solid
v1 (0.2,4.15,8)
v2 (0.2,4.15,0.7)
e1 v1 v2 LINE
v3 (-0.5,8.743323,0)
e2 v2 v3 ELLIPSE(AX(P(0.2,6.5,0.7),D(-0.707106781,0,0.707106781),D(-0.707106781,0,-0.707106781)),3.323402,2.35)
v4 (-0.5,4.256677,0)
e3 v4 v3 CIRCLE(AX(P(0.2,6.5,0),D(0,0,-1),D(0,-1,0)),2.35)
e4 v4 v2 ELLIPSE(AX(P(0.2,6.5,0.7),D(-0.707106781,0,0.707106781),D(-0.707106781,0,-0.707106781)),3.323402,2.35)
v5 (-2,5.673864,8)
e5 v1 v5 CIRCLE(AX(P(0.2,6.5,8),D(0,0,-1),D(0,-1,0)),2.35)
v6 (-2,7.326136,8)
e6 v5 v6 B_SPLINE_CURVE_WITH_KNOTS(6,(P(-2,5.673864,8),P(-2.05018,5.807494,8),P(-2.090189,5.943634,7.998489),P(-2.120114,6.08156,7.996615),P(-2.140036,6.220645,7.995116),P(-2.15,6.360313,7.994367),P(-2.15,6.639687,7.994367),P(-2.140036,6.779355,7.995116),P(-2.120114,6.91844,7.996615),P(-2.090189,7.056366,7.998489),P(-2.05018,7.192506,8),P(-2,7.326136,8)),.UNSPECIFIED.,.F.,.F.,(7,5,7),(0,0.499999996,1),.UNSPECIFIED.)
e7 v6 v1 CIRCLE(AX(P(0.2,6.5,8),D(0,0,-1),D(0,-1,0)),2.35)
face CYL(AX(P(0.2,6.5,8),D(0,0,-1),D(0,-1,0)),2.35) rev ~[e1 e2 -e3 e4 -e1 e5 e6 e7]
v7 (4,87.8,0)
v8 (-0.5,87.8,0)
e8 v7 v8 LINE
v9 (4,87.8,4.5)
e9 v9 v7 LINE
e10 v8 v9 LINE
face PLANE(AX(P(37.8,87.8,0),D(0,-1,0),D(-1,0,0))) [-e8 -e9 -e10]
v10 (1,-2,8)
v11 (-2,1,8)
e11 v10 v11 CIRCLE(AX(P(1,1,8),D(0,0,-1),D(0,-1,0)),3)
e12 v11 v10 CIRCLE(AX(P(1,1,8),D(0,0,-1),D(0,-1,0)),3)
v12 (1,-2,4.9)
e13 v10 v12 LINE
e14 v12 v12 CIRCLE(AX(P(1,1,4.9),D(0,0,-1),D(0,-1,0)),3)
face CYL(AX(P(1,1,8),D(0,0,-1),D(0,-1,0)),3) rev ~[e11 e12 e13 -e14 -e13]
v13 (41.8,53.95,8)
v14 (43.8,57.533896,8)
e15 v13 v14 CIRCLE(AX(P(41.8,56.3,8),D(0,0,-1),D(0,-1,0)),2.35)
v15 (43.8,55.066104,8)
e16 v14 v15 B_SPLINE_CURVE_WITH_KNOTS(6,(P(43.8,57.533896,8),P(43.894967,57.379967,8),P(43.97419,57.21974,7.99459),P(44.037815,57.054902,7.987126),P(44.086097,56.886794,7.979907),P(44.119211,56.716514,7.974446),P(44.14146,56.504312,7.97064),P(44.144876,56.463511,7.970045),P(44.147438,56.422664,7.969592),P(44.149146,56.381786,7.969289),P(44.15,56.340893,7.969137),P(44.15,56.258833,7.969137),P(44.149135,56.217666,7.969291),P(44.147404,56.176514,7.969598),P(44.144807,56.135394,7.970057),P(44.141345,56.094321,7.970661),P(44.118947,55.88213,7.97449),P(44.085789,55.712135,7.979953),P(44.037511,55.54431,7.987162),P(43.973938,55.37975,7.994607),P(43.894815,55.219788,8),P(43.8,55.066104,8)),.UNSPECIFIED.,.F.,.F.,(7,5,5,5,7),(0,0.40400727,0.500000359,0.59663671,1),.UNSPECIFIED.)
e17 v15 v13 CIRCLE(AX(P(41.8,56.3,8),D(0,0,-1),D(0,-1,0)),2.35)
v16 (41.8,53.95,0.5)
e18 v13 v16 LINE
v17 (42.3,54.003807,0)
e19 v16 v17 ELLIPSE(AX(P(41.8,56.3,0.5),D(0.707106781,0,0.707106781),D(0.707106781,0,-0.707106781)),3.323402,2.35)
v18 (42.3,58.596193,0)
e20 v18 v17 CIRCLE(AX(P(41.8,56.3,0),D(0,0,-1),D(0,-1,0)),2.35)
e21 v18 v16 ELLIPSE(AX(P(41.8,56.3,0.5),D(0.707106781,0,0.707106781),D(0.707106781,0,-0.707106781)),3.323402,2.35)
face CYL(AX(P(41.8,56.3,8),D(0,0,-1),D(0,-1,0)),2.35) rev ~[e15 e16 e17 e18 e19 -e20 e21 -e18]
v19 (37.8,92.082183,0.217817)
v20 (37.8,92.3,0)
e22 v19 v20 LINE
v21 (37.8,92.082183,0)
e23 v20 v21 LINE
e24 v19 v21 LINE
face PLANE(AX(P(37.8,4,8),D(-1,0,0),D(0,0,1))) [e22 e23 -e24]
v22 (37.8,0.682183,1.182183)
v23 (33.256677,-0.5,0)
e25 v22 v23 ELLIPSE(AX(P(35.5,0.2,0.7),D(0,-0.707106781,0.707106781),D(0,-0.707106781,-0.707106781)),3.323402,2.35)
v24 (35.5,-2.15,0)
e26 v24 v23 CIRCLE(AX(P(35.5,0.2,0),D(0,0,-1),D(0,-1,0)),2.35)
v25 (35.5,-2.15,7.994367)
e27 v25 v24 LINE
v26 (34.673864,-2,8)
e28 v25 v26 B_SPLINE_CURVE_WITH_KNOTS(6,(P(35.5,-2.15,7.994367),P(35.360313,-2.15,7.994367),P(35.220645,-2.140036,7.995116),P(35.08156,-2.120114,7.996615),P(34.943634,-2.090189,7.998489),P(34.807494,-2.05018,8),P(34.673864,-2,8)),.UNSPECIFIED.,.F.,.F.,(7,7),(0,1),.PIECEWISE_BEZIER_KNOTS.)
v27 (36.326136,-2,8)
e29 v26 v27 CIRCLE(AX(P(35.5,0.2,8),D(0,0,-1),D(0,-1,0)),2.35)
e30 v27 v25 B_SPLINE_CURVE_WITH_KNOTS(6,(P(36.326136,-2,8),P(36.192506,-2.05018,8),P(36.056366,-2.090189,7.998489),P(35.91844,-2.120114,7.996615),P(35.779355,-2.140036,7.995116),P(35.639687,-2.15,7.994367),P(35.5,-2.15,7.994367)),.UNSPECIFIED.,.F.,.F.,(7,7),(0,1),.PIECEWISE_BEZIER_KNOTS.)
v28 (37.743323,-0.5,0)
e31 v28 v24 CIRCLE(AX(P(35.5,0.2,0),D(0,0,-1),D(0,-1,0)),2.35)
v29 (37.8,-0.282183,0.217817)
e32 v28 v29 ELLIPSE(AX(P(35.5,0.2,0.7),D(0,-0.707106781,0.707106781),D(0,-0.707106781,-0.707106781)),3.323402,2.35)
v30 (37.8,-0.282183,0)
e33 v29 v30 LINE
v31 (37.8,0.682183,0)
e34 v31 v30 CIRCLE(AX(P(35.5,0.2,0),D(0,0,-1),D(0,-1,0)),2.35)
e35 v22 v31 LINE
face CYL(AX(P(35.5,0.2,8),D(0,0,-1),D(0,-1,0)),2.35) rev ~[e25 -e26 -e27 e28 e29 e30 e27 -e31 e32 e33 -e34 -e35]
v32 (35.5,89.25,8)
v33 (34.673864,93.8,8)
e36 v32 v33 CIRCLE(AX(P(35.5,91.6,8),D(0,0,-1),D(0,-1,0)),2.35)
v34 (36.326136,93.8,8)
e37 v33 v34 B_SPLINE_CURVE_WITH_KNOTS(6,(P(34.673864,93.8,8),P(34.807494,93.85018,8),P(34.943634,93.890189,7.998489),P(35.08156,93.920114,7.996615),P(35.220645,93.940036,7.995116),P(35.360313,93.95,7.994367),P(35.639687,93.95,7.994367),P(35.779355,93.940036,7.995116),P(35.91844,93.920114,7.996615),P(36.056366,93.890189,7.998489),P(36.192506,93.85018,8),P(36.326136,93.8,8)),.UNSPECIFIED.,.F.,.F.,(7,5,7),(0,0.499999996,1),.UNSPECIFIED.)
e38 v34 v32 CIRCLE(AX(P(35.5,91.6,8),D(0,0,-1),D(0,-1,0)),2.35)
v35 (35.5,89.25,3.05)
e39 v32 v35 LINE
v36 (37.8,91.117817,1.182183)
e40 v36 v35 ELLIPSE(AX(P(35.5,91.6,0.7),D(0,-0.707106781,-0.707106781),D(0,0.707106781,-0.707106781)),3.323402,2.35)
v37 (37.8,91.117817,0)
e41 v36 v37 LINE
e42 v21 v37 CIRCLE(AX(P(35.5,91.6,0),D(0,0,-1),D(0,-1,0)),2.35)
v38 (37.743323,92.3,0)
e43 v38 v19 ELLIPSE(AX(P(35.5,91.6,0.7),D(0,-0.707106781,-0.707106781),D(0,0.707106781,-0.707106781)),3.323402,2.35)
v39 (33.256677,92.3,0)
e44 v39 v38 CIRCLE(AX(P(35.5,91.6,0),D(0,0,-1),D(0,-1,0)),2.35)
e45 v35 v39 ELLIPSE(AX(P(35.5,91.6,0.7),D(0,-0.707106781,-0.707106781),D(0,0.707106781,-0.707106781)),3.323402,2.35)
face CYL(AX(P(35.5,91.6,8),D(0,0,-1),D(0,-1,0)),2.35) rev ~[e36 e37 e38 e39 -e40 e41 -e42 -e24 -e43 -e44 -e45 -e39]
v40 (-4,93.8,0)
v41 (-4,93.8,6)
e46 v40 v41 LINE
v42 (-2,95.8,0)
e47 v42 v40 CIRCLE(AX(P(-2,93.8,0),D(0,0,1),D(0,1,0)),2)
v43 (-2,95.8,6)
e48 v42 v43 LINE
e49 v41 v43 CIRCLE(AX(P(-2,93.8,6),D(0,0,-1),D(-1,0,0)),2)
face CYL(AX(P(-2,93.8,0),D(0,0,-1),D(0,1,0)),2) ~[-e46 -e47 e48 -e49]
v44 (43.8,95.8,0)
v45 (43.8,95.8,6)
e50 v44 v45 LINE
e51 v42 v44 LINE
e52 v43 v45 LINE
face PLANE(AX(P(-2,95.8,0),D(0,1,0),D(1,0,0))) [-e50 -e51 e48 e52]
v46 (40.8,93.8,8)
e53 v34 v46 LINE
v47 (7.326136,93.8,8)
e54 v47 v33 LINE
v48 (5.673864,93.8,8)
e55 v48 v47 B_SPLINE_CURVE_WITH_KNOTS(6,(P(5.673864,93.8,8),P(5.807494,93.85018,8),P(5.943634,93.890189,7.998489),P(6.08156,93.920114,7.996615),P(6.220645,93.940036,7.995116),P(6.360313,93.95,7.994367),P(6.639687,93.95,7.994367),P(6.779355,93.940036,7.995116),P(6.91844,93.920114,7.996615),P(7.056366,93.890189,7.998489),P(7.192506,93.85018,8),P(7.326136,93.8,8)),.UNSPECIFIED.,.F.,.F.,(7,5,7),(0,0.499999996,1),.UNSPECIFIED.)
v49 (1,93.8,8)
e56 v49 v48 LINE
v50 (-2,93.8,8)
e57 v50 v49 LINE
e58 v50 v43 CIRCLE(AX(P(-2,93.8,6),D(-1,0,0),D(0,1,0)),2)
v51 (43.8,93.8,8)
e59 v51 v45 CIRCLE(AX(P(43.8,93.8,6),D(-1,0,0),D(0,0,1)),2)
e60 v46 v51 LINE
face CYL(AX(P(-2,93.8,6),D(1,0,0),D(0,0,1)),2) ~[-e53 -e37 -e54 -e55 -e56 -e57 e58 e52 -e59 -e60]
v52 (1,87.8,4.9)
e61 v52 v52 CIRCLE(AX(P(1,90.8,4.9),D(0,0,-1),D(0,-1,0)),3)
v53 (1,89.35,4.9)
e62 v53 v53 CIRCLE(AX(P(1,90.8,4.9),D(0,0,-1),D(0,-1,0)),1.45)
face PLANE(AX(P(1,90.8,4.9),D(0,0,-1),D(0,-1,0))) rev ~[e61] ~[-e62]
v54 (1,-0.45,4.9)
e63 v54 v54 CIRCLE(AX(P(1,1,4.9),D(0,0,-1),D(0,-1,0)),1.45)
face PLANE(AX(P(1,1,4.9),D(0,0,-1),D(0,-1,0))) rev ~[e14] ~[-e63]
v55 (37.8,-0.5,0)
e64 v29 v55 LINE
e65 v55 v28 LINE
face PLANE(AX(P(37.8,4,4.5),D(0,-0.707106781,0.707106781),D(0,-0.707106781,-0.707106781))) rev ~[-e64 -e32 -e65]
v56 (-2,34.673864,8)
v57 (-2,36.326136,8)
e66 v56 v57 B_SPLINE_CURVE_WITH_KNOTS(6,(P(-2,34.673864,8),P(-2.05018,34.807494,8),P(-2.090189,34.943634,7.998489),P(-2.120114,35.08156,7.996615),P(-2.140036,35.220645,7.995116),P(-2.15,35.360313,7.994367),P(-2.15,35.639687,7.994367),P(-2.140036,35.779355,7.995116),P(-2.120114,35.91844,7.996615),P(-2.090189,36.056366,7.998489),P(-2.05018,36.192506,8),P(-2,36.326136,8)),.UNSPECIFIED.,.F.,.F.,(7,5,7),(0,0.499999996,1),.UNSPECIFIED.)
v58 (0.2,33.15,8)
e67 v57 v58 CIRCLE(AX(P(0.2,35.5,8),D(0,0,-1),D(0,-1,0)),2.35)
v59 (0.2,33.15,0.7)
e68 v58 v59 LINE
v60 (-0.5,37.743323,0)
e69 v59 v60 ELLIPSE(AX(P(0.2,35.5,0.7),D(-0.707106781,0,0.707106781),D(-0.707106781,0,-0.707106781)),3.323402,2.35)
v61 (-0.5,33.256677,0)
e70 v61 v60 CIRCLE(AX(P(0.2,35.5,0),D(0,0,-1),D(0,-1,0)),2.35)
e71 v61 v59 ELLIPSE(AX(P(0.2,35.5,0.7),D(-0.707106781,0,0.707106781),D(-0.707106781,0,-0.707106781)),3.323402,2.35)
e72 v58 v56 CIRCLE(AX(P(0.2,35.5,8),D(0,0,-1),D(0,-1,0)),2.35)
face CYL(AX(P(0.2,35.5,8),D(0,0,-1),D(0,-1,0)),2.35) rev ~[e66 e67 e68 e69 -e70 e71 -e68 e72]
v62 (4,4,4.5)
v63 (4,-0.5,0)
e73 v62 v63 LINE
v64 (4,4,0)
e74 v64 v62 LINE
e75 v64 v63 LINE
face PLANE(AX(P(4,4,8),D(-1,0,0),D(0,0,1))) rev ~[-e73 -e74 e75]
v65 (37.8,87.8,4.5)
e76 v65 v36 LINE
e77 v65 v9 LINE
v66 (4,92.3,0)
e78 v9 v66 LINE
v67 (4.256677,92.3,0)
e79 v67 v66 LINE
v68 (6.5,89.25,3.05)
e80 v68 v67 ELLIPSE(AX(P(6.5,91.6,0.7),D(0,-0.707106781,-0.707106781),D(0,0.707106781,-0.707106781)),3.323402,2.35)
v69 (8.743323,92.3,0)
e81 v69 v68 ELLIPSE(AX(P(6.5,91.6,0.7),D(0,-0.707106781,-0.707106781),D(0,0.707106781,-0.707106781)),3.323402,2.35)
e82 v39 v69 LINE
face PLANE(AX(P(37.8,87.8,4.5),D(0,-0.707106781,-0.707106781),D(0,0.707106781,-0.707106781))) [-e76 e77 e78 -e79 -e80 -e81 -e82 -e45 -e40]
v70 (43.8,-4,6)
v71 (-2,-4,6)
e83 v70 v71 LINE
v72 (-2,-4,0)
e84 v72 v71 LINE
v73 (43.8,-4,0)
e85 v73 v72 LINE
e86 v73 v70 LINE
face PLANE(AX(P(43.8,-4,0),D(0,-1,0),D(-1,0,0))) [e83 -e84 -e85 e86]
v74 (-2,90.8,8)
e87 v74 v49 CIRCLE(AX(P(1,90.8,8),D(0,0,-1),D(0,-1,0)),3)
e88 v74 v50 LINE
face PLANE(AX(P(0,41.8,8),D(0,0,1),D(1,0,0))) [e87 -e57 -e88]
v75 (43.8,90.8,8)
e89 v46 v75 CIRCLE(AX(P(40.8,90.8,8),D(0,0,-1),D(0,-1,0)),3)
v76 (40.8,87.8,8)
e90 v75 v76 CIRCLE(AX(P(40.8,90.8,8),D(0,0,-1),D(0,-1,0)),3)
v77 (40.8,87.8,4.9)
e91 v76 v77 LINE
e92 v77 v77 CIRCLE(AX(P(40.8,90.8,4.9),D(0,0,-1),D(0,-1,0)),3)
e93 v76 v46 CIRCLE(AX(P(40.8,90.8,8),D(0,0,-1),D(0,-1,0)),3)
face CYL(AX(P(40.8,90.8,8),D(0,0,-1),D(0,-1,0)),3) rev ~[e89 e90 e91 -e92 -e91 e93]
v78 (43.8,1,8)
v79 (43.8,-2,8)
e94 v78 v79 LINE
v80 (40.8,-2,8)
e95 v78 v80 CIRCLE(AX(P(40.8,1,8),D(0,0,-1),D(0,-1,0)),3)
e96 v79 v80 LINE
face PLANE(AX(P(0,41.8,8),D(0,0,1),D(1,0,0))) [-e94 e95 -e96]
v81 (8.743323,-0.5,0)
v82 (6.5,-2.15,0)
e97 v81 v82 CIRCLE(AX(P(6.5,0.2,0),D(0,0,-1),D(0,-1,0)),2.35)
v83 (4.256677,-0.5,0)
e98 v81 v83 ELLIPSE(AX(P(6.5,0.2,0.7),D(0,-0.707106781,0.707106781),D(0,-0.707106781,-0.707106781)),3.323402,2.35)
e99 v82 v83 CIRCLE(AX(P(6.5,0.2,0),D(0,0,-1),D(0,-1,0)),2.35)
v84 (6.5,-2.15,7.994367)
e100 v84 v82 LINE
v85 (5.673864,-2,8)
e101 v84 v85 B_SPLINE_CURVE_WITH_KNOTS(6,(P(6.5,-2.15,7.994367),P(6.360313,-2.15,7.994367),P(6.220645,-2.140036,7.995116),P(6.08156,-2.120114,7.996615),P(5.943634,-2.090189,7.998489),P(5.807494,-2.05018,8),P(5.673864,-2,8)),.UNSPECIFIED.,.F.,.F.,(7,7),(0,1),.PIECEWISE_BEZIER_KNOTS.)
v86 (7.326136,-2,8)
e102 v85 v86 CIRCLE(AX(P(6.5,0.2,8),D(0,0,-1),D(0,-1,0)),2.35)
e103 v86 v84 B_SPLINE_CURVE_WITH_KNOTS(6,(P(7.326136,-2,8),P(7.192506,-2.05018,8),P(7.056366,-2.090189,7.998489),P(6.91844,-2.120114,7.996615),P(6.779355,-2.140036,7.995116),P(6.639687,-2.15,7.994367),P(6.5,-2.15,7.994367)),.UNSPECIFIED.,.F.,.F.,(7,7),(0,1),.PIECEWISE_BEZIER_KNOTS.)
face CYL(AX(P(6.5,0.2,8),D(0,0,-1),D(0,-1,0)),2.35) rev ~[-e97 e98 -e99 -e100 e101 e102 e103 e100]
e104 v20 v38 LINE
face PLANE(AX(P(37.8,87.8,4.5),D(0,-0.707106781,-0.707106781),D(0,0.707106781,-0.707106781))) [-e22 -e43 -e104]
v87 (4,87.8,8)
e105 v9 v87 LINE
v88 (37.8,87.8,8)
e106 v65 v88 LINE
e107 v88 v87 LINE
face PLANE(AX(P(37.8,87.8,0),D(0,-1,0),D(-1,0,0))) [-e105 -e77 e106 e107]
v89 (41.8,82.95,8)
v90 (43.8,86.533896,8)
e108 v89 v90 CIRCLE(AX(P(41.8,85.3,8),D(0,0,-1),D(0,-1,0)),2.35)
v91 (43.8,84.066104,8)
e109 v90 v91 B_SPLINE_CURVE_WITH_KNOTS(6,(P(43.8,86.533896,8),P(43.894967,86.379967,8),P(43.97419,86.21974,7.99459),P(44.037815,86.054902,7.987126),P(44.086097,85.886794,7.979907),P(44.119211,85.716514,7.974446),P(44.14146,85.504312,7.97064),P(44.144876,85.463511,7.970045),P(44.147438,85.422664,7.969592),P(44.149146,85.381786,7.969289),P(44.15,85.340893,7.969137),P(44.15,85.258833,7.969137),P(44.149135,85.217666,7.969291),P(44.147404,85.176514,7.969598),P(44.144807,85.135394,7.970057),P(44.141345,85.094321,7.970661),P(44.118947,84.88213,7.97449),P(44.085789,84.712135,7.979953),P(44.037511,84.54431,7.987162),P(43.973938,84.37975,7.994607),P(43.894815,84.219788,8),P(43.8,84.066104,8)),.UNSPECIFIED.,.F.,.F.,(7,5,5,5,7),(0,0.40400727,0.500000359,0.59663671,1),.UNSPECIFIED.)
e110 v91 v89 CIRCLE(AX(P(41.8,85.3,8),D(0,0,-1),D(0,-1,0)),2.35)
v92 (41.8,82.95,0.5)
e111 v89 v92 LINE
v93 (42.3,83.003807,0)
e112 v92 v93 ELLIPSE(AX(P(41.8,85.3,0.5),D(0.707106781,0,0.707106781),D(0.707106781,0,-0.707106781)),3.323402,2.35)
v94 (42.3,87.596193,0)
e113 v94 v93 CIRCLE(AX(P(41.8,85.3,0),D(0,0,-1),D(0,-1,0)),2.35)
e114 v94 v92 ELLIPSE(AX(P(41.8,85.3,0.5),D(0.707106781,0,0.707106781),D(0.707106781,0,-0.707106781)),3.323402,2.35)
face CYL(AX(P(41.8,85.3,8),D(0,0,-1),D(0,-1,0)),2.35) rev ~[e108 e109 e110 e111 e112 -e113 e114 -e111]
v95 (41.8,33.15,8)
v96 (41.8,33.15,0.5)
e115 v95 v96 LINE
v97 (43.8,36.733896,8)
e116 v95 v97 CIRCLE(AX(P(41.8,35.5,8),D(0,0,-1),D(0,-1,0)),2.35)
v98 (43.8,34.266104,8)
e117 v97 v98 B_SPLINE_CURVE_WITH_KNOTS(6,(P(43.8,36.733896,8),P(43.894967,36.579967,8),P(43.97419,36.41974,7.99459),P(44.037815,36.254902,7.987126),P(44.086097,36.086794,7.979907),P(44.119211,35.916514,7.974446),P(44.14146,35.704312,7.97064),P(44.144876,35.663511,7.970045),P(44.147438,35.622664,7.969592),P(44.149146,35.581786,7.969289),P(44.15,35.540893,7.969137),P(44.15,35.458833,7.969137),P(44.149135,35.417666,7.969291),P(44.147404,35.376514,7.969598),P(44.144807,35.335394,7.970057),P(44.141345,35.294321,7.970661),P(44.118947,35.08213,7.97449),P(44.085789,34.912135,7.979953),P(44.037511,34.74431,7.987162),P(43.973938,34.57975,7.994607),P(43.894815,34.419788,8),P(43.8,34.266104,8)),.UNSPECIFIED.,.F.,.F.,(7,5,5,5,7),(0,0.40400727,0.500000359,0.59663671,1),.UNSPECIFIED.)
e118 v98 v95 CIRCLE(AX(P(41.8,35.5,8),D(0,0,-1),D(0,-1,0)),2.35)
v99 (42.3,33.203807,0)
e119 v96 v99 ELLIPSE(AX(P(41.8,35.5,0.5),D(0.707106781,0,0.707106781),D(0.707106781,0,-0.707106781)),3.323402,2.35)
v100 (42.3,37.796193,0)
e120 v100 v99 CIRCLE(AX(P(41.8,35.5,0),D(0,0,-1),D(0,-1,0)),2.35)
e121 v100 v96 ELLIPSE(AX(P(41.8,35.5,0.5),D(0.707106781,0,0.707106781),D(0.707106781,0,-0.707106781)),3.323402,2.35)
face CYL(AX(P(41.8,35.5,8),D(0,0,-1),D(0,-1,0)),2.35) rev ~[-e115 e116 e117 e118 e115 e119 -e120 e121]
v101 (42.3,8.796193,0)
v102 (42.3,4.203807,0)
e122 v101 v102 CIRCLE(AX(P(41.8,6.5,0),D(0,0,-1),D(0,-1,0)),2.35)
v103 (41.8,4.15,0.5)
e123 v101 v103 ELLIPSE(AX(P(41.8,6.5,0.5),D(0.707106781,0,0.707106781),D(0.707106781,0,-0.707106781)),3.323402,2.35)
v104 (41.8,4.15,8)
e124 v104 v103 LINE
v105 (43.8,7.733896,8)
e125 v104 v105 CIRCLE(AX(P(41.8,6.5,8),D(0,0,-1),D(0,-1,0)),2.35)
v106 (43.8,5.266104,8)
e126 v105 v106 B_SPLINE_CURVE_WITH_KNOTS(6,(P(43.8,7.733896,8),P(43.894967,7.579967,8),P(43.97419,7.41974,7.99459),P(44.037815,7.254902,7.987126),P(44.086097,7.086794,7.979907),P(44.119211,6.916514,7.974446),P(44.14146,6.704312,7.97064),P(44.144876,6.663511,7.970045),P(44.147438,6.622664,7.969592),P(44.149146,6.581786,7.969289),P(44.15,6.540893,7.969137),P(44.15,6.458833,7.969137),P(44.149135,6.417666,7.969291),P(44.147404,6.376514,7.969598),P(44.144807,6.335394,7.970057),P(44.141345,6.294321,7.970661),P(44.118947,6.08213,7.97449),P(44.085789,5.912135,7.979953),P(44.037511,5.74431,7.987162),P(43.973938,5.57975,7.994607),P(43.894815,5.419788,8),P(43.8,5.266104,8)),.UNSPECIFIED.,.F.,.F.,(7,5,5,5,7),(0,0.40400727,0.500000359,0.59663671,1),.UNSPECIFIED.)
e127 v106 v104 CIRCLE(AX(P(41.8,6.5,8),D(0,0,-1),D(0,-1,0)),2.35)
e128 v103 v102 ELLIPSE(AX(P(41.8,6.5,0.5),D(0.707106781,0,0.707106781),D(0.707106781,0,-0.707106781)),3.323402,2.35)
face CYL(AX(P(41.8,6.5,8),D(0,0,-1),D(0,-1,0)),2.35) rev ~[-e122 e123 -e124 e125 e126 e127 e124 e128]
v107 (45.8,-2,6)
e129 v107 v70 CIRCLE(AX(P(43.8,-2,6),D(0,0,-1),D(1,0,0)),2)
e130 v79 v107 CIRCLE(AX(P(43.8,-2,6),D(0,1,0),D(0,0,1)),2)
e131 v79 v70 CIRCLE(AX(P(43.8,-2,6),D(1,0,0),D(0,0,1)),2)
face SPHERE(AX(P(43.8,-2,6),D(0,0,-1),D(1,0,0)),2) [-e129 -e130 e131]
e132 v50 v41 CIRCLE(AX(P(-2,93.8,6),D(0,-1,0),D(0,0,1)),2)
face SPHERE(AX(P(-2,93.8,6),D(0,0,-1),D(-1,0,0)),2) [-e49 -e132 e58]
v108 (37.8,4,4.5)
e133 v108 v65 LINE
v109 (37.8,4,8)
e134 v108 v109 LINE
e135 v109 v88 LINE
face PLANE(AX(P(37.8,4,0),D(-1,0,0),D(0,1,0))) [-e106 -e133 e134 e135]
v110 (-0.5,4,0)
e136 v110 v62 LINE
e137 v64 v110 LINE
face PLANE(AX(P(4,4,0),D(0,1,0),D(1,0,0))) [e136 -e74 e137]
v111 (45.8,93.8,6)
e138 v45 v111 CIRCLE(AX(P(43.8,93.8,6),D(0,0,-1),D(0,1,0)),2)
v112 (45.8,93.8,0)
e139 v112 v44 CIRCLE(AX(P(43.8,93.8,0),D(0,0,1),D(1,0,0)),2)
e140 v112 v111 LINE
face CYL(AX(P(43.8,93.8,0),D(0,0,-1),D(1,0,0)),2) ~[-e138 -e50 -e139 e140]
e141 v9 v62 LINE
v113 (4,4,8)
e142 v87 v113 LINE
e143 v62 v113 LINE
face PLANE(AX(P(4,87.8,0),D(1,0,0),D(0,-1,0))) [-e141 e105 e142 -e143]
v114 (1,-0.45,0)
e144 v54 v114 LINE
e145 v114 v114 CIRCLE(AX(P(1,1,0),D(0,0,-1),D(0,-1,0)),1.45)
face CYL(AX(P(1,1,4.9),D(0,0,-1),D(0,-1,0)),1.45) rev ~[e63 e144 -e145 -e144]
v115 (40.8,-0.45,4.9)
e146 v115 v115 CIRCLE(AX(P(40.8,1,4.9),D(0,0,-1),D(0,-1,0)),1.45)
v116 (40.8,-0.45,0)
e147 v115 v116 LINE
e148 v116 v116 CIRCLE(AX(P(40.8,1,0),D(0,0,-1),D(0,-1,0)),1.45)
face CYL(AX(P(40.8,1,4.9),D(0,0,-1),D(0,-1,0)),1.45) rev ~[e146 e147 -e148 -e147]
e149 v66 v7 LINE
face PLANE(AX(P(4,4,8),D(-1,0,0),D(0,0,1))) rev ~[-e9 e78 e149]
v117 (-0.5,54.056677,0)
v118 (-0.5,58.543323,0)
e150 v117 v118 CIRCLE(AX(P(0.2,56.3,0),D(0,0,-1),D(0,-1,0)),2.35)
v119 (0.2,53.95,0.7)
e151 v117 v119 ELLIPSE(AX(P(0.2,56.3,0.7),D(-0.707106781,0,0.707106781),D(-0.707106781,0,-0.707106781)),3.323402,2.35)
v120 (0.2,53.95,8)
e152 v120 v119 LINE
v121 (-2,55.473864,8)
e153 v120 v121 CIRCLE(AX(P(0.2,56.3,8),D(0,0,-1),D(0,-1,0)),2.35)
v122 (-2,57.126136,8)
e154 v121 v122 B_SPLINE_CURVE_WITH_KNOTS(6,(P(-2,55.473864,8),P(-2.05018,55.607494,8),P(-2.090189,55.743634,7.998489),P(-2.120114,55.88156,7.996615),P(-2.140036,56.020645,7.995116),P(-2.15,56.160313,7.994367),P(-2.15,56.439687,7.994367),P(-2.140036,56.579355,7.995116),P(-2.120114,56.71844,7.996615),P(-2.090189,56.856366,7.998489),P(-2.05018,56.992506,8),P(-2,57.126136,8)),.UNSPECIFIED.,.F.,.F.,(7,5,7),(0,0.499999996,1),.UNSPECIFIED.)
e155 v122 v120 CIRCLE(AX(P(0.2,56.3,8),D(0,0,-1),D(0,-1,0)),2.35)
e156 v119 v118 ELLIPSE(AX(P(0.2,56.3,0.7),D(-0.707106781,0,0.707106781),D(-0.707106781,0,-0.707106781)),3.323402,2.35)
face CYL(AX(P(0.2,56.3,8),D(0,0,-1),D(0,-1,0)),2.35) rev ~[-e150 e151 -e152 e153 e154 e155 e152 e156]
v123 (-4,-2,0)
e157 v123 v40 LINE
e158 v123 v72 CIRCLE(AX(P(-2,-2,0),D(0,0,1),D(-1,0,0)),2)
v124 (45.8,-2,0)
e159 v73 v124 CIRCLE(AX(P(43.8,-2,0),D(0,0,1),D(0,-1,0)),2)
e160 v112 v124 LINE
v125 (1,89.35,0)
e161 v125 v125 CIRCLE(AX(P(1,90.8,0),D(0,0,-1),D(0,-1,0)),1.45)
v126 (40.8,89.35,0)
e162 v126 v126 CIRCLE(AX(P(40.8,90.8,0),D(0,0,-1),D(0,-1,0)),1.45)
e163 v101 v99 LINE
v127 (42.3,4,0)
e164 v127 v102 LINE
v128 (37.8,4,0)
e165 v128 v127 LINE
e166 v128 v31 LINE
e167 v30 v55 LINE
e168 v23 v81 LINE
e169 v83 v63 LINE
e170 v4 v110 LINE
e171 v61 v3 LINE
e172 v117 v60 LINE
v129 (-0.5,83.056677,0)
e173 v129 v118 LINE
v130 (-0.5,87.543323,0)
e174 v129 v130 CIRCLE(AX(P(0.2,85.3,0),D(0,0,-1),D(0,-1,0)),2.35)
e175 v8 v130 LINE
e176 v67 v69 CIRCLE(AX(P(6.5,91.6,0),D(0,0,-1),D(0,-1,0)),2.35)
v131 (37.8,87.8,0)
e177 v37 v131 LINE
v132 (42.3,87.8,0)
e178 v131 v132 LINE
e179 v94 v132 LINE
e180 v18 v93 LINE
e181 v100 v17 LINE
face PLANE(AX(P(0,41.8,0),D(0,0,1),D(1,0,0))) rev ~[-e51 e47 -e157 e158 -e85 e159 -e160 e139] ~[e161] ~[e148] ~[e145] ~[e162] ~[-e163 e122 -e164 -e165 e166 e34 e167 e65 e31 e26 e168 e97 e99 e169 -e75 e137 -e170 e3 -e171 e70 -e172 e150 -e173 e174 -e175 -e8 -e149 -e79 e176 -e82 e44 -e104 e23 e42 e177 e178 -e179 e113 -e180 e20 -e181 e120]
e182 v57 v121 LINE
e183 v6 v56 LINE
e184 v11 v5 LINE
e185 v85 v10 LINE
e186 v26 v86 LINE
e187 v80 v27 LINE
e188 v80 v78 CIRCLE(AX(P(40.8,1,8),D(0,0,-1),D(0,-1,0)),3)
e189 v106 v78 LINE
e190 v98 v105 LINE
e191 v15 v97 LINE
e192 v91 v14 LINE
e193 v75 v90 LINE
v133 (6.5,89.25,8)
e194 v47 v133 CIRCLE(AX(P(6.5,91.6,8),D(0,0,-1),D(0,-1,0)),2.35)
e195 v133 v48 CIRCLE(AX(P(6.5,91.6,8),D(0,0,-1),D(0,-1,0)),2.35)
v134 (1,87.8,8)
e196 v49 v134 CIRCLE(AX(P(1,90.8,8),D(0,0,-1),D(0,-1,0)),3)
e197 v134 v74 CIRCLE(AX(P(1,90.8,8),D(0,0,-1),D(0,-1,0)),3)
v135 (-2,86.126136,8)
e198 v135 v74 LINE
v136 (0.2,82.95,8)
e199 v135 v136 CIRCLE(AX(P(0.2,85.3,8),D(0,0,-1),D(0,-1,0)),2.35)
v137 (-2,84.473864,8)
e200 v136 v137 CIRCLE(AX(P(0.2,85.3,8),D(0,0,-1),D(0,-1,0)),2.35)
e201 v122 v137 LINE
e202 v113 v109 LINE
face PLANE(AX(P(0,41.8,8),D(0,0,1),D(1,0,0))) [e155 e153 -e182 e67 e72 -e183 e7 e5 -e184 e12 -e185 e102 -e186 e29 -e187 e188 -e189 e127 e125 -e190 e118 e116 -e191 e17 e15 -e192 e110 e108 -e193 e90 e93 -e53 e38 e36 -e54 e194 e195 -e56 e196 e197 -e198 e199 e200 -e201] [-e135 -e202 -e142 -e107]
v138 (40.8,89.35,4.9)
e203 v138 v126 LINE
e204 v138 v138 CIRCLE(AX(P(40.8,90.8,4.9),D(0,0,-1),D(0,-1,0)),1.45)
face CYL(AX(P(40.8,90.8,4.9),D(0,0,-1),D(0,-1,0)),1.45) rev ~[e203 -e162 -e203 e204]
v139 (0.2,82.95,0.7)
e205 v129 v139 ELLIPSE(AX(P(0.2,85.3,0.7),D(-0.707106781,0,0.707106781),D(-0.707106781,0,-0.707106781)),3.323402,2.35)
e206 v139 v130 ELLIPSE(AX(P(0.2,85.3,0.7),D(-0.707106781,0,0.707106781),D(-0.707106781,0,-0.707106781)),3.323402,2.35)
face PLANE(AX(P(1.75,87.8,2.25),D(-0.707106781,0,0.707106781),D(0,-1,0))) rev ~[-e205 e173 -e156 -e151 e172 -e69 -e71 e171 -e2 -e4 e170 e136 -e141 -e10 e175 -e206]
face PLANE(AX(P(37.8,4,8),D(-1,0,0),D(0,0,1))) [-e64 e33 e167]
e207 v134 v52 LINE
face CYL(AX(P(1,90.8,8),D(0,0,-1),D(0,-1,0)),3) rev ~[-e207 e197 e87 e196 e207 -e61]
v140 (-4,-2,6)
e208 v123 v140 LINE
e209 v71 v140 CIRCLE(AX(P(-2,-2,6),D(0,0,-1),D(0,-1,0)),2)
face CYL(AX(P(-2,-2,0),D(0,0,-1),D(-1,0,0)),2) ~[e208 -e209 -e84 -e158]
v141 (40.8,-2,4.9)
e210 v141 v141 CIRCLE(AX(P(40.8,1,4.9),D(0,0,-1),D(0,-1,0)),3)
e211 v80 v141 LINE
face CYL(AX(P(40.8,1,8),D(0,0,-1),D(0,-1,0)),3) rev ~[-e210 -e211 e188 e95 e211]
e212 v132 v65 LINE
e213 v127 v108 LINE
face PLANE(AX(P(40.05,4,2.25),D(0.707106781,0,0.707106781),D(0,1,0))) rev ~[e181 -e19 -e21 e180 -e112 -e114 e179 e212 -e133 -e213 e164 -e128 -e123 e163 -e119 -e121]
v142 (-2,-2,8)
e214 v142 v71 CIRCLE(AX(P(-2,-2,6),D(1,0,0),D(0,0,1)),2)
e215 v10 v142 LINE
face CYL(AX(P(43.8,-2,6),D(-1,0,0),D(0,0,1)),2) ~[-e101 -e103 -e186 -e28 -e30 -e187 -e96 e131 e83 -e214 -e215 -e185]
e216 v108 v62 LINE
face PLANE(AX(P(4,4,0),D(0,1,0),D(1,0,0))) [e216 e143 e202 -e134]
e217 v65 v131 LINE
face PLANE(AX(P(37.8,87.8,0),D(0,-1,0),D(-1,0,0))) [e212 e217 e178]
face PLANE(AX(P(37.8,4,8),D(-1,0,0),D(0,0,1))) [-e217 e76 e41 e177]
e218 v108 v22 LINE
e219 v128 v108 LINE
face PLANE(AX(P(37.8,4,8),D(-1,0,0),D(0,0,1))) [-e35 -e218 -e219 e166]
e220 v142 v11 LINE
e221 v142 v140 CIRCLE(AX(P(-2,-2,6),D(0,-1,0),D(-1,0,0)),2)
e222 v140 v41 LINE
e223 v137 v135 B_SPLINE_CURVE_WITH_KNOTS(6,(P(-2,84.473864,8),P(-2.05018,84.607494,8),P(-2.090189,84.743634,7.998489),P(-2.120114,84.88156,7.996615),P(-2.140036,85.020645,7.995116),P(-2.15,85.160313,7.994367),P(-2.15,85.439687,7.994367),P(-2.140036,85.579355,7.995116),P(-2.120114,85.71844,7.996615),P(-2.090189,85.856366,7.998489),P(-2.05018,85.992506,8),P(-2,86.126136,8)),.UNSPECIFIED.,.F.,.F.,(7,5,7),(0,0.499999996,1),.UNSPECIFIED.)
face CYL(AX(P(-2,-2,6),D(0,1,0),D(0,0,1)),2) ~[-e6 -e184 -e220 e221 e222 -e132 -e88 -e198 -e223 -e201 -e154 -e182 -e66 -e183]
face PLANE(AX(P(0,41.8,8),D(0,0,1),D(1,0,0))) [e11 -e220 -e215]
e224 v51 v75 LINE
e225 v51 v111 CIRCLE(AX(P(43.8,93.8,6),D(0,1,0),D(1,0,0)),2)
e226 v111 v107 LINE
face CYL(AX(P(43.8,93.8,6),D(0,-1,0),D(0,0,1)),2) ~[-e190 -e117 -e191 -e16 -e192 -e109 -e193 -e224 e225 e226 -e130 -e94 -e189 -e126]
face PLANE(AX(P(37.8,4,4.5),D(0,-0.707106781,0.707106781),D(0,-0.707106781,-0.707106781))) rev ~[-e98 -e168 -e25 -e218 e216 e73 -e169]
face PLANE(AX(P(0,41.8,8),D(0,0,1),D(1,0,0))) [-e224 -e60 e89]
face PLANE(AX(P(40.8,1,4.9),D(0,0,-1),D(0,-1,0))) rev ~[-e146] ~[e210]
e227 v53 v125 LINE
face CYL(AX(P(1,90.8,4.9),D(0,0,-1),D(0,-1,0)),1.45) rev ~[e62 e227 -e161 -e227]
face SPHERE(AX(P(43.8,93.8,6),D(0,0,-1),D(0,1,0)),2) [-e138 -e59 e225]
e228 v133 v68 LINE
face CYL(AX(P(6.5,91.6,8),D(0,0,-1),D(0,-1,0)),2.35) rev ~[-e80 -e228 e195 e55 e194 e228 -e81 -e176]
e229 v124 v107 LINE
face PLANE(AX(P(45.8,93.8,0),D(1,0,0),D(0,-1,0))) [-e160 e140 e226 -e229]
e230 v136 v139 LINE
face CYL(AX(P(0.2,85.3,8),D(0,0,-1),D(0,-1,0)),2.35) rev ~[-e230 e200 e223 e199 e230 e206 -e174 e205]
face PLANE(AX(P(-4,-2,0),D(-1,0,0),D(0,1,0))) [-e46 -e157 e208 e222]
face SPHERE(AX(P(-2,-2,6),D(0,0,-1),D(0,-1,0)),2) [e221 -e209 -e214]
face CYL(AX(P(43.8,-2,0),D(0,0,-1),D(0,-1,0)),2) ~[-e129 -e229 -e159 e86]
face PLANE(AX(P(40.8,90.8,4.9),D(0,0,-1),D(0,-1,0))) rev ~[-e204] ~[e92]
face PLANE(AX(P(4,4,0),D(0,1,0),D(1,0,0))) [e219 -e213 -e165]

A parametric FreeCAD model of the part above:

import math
import FreeCAD as App
import Part
import Sketcher


def edges_at(feature, points):
    """Names of the edges that pass closest to the given points."""
    edges = feature.Shape.Edges
    near = lambda p: min(range(len(edges)), key=lambda i: edges[i].distToShape(Part.Vertex(*p))[0])
    return sorted({f"Edge{near(p) + 1}" for p in points})

doc = App.newDocument("Part")
body = doc.addObject("PartDesign::Body", "Body")

sketch1 = doc.addObject("Sketcher::SketchObject", "Sketch")
body.addObject(sketch1)
sketch1.AttachmentSupport = (doc.XY_Plane, [""])
sketch1.MapMode = "FlatFace"
sketch1.addGeometry(Part.LineSegment(App.Vector(43.8, 95.8, 0), App.Vector(-2, 95.8, 0)), False)
sketch1.addGeometry(Part.ArcOfCircle(Part.Circle(App.Vector(-2, 93.8, 0), App.Vector(0, 0, 1), 2), math.radians(90), math.radians(180)), False)
sketch1.addGeometry(Part.LineSegment(App.Vector(-4, 93.8, 0), App.Vector(-4, -2, 0)), False)
sketch1.addGeometry(Part.ArcOfCircle(Part.Circle(App.Vector(-2, -2, 0), App.Vector(0, 0, 1), 2), math.radians(180), math.radians(270)), False)
sketch1.addGeometry(Part.LineSegment(App.Vector(-2, -4, 0), App.Vector(43.8, -4, 0)), False)
sketch1.addGeometry(Part.ArcOfCircle(Part.Circle(App.Vector(43.8, -2, 0), App.Vector(0, 0, 1), 2), math.radians(-90), math.radians(0)), False)
sketch1.addGeometry(Part.LineSegment(App.Vector(45.8, -2, 0), App.Vector(45.8, 93.8, 0)), False)
sketch1.addGeometry(Part.ArcOfCircle(Part.Circle(App.Vector(43.8, 93.8, 0), App.Vector(0, 0, 1), 2), math.radians(0), math.radians(90)), False)
sketch1.addGeometry(Part.Circle(App.Vector(1, 1, 0), App.Vector(0, 0, 1), 1.4), False)
sketch1.addGeometry(Part.Circle(App.Vector(40.8, 1, 0), App.Vector(0, 0, 1), 1.4), False)
sketch1.addGeometry(Part.LineSegment(App.Vector(4, 4, 0), App.Vector(4, 87.8, 0)), False)
sketch1.addGeometry(Part.LineSegment(App.Vector(4, 87.8, 0), App.Vector(37.8, 87.8, 0)), False)
sketch1.addGeometry(Part.LineSegment(App.Vector(37.8, 87.8, 0), App.Vector(37.8, 4, 0)), False)
sketch1.addGeometry(Part.LineSegment(App.Vector(37.8, 4, 0), App.Vector(4, 4, 0)), False)
sketch1.addConstraint(Sketcher.Constraint("Tangent", 0, 2, 1, 1))
sketch1.addConstraint(Sketcher.Constraint("Tangent", 1, 2, 2, 1))
sketch1.addConstraint(Sketcher.Constraint("Tangent", 2, 2, 3, 1))
sketch1.addConstraint(Sketcher.Constraint("Tangent", 3, 2, 4, 1))
sketch1.addConstraint(Sketcher.Constraint("Tangent", 4, 2, 5, 1))
sketch1.addConstraint(Sketcher.Constraint("Tangent", 5, 2, 6, 1))
sketch1.addConstraint(Sketcher.Constraint("Tangent", 6, 2, 7, 1))
sketch1.addConstraint(Sketcher.Constraint("Tangent", 7, 2, 0, 1))
sketch1.addConstraint(Sketcher.Constraint("Coincident", 10, 2, 11, 1))
sketch1.addConstraint(Sketcher.Constraint("Coincident", 11, 2, 12, 1))
sketch1.addConstraint(Sketcher.Constraint("Coincident", 12, 2, 13, 1))
sketch1.addConstraint(Sketcher.Constraint("Coincident", 13, 2, 10, 1))
sketch1.addConstraint(Sketcher.Constraint("Horizontal", 0))
sketch1.addConstraint(Sketcher.Constraint("Vertical", 2))
sketch1.addConstraint(Sketcher.Constraint("Horizontal", 4))
sketch1.addConstraint(Sketcher.Constraint("Vertical", 6))
sketch1.addConstraint(Sketcher.Constraint("Vertical", 10))
sketch1.addConstraint(Sketcher.Constraint("Horizontal", 11))
sketch1.addConstraint(Sketcher.Constraint("Vertical", 12))
sketch1.addConstraint(Sketcher.Constraint("Horizontal", 13))
sketch1.addConstraint(Sketcher.Constraint("Equal", 1, 3))
sketch1.addConstraint(Sketcher.Constraint("Equal", 3, 5))
sketch1.addConstraint(Sketcher.Constraint("Equal", 5, 7))
sketch1.addConstraint(Sketcher.Constraint("Equal", 8, 9))
sketch1.addConstraint(Sketcher.Constraint("Horizontal", 8, 3, 9, 3))
sketch1.addConstraint(Sketcher.Constraint("Radius", 1, 2.0))
sketch1.addConstraint(Sketcher.Constraint("Diameter", 8, 2.8))
sketch1.addConstraint(Sketcher.Constraint("DistanceX", 1, 3, -1, 1, 2.0))
sketch1.addConstraint(Sketcher.Constraint("DistanceY", 3, 3, -1, 1, 2.0))
sketch1.addConstraint(Sketcher.Constraint("DistanceX", 1, 2, 8, 3, 5.0))
sketch1.addConstraint(Sketcher.Constraint("DistanceY", 3, 2, 8, 3, 5.0))
sketch1.addConstraint(Sketcher.Constraint("DistanceX", 9, 3, 5, 2, 5.0))
sketch1.addConstraint(Sketcher.Constraint("DistanceY", 10, 2, 0, 2, 8.0))
sketch1.addConstraint(Sketcher.Constraint("DistanceX", 1, 2, 10, 2, 8.0))
sketch1.addConstraint(Sketcher.Constraint("DistanceX", 11, 2, 6, 2, 8.0))
sketch1.addConstraint(Sketcher.Constraint("DistanceY", 4, 2, 12, 2, 8.0))
sketch1.addConstraint(Sketcher.Constraint("DistanceX", 1, 2, 6, 2, 49.8))
sketch1.addConstraint(Sketcher.Constraint("DistanceY", 2, 2, 2, 1, 95.8))
pad1 = doc.addObject("PartDesign::Pad", "Pad")
body.addObject(pad1)
pad1.Profile = sketch1
pad1.Length = 8
doc.recompute()

fillet = doc.addObject("PartDesign::Fillet", "Fillet")
body.addObject(fillet)
fillet.Base = (pad1, edges_at(pad1, [
    (20.9, -4, 8),
    (45.214, -3.414, 8),
    (45.8, 45.9, 8),
    (45.214, 95.214, 8),
    (20.9, 95.8, 8),
    (-3.414, 95.214, 8),
    (-4, 45.9, 8),
    (-3.414, -3.414, 8),
]))
fillet.Radius = 2

sketch2 = doc.addObject("Sketcher::SketchObject", "Sketch001")
body.addObject(sketch2)
sketch2.AttachmentSupport = (doc.XY_Plane, [""])
sketch2.MapMode = "FlatFace"
sketch2.AttachmentOffset = App.Placement(App.Vector(0, 0, 8), App.Rotation())
sketch2.addGeometry(Part.Circle(App.Vector(1, 1, 0), App.Vector(0, 0, 1), 1.4), False)
sketch2.addGeometry(Part.Circle(App.Vector(40.8, 1, 0), App.Vector(0, 0, 1), 1.4), False)
sketch2.addGeometry(Part.Circle(App.Vector(1, 90.8, 0), App.Vector(0, 0, 1), 1.4), False)
sketch2.addGeometry(Part.Circle(App.Vector(40.8, 90.8, 0), App.Vector(0, 0, 1), 1.4), False)
sketch2.addConstraint(Sketcher.Constraint("Equal", 0, 1))
sketch2.addConstraint(Sketcher.Constraint("Equal", 1, 2))
sketch2.addConstraint(Sketcher.Constraint("Equal", 2, 3))
sketch2.addConstraint(Sketcher.Constraint("Horizontal", 0, 3, 1, 3))
sketch2.addConstraint(Sketcher.Constraint("Horizontal", 2, 3, 3, 3))
sketch2.addConstraint(Sketcher.Constraint("Vertical", 0, 3, 2, 3))
sketch2.addConstraint(Sketcher.Constraint("Vertical", 1, 3, 3, 3))
sketch2.addConstraint(Sketcher.Constraint("Diameter", 0, 2.9))
sketch2.addConstraint(Sketcher.Constraint("DistanceX", -1, 1, 0, 3, 1.0))
sketch2.addConstraint(Sketcher.Constraint("DistanceY", -1, 1, 0, 3, 1.0))
sketch2.addConstraint(Sketcher.Constraint("DistanceX", -1, 1, 1, 3, 40.8))
sketch2.addConstraint(Sketcher.Constraint("DistanceY", -1, 1, 2, 3, 90.8))
doc.recompute()
hole = doc.addObject("PartDesign::Hole", "Hole")
body.addObject(hole)
hole.Profile = sketch2
hole.ThreadType = "None"
hole.Diameter = 2.9
hole.DepthType = "Dimension"
hole.Depth = 12
hole.DrillPoint = "Angled"
hole.DrillPointAngle = 118
hole.HoleCutType = "Counterbore"
hole.HoleCutDiameter = 6
hole.HoleCutDepth = 3.1
doc.recompute()

chamfer = doc.addObject("PartDesign::Chamfer", "Chamfer")
body.addObject(chamfer)
chamfer.Base = (hole, edges_at(hole, [(4, 45.9, 0), (37.8, 45.9, 0)]))
chamfer.Size = 4.5

sketch3 = doc.addObject("Sketcher::SketchObject", "Sketch002")
body.addObject(sketch3)
sketch3.AttachmentSupport = (doc.YZ_Plane, [""])
sketch3.MapMode = "FlatFace"
sketch3.AttachmentOffset = App.Placement(App.Vector(0, 0, 37.8), App.Rotation())
sketch3.addGeometry(Part.LineSegment(App.Vector(92.3, 0, 0), App.Vector(87.8, 0, 0)), False)
sketch3.addGeometry(Part.LineSegment(App.Vector(87.8, 0, 0), App.Vector(87.8, 4.5, 0)), False)
sketch3.addGeometry(Part.LineSegment(App.Vector(87.8, 4.5, 0), App.Vector(92.3, 0, 0)), False)
sketch3.addGeometry(Part.LineSegment(App.Vector(4, 4.5, 0), App.Vector(4, 0, 0)), False)
sketch3.addGeometry(Part.LineSegment(App.Vector(4, 0, 0), App.Vector(-0.5, 0, 0)), False)
sketch3.addGeometry(Part.LineSegment(App.Vector(-0.5, 0, 0), App.Vector(4, 4.5, 0)), False)
sketch3.addConstraint(Sketcher.Constraint("Coincident", 0, 2, 1, 1))
sketch3.addConstraint(Sketcher.Constraint("Coincident", 1, 2, 2, 1))
sketch3.addConstraint(Sketcher.Constraint("Coincident", 2, 2, 0, 1))
sketch3.addConstraint(Sketcher.Constraint("Coincident", 3, 2, 4, 1))
sketch3.addConstraint(Sketcher.Constraint("Coincident", 4, 2, 5, 1))
sketch3.addConstraint(Sketcher.Constraint("Coincident", 5, 2, 3, 1))
sketch3.addConstraint(Sketcher.Constraint("Horizontal", 0))
sketch3.addConstraint(Sketcher.Constraint("Vertical", 1))
sketch3.addConstraint(Sketcher.Constraint("Vertical", 3))
sketch3.addConstraint(Sketcher.Constraint("Horizontal", 4))
sketch3.addConstraint(Sketcher.Constraint("PointOnObject", 0, 2, -1))
sketch3.addConstraint(Sketcher.Constraint("PointOnObject", 3, 2, -1))
sketch3.addConstraint(Sketcher.Constraint("Perpendicular", 2, 5))
sketch3.addConstraint(Sketcher.Constraint("Horizontal", 1, 2, 5, 2))
sketch3.addConstraint(Sketcher.Constraint("Equal", 0, 4))
sketch3.addConstraint(Sketcher.Constraint("DistanceX", 0, 2, 0, 1, 4.5))
sketch3.addConstraint(Sketcher.Constraint("DistanceX", -1, 1, 3, 2, 4.0))
sketch3.addConstraint(Sketcher.Constraint("DistanceX", -1, 1, 0, 2, 87.8))
pocket1 = doc.addObject("PartDesign::Pocket", "Pocket")
body.addObject(pocket1)
pocket1.Profile = sketch3
pocket1.Length = 33.8

sketch4 = doc.addObject("Sketcher::SketchObject", "Sketch003")
body.addObject(sketch4)
sketch4.AttachmentSupport = (doc.XY_Plane, [""])
sketch4.MapMode = "FlatFace"
sketch4.AttachmentOffset = App.Placement(App.Vector(0, 0, 8), App.Rotation())
sketch4.addGeometry(Part.Circle(App.Vector(6.5, 91.6, 0), App.Vector(0, 0, 1), 2.4), False)
sketch4.addGeometry(Part.Circle(App.Vector(35.5, 91.6, 0), App.Vector(0, 0, 1), 2.4), False)
sketch4.addGeometry(Part.Circle(App.Vector(41.8, 85.3, 0), App.Vector(0, 0, 1), 2.4), False)
sketch4.addGeometry(Part.Circle(App.Vector(0.2, 85.3, 0), App.Vector(0, 0, 1), 2.4), False)
sketch4.addGeometry(Part.Circle(App.Vector(0.2, 56.3, 0), App.Vector(0, 0, 1), 2.4), False)
sketch4.addGeometry(Part.Circle(App.Vector(41.8, 56.3, 0), App.Vector(0, 0, 1), 2.4), False)
sketch4.addGeometry(Part.Circle(App.Vector(41.8, 35.5, 0), App.Vector(0, 0, 1), 2.4), False)
sketch4.addGeometry(Part.Circle(App.Vector(0.2, 35.5, 0), App.Vector(0, 0, 1), 2.4), False)
sketch4.addGeometry(Part.Circle(App.Vector(0.2, 6.5, 0), App.Vector(0, 0, 1), 2.4), False)
sketch4.addGeometry(Part.Circle(App.Vector(6.5, 0.2, 0), App.Vector(0, 0, 1), 2.4), False)
sketch4.addGeometry(Part.Circle(App.Vector(35.5, 0.2, 0), App.Vector(0, 0, 1), 2.4), False)
sketch4.addGeometry(Part.Circle(App.Vector(41.8, 6.5, 0), App.Vector(0, 0, 1), 2.4), False)
sketch4.addConstraint(Sketcher.Constraint("Equal", 0, 1))
sketch4.addConstraint(Sketcher.Constraint("Equal", 1, 2))
sketch4.addConstraint(Sketcher.Constraint("Equal", 2, 3))
sketch4.addConstraint(Sketcher.Constraint("Equal", 3, 4))
sketch4.addConstraint(Sketcher.Constraint("Equal", 4, 5))
sketch4.addConstraint(Sketcher.Constraint("Equal", 5, 6))
sketch4.addConstraint(Sketcher.Constraint("Equal", 6, 7))
sketch4.addConstraint(Sketcher.Constraint("Equal", 7, 8))
sketch4.addConstraint(Sketcher.Constraint("Equal", 8, 9))
sketch4.addConstraint(Sketcher.Constraint("Equal", 9, 10))
sketch4.addConstraint(Sketcher.Constraint("Equal", 10, 11))
sketch4.addConstraint(Sketcher.Constraint("Horizontal", 0, 3, 1, 3))
sketch4.addConstraint(Sketcher.Constraint("Horizontal", 2, 3, 3, 3))
sketch4.addConstraint(Sketcher.Constraint("Horizontal", 4, 3, 5, 3))
sketch4.addConstraint(Sketcher.Constraint("Horizontal", 6, 3, 7, 3))
sketch4.addConstraint(Sketcher.Constraint("Horizontal", 9, 3, 10, 3))
sketch4.addConstraint(Sketcher.Constraint("Horizontal", 8, 3, 11, 3))
sketch4.addConstraint(Sketcher.Constraint("Vertical", 3, 3, 4, 3))
sketch4.addConstraint(Sketcher.Constraint("Vertical", 2, 3, 5, 3))
sketch4.addConstraint(Sketcher.Constraint("Vertical", 5, 3, 6, 3))
sketch4.addConstraint(Sketcher.Constraint("Vertical", 4, 3, 7, 3))
sketch4.addConstraint(Sketcher.Constraint("Vertical", 7, 3, 8, 3))
sketch4.addConstraint(Sketcher.Constraint("Vertical", 0, 3, 9, 3))
sketch4.addConstraint(Sketcher.Constraint("Vertical", 1, 3, 10, 3))
sketch4.addConstraint(Sketcher.Constraint("Vertical", 6, 3, 11, 3))
sketch4.addConstraint(Sketcher.Constraint("Diameter", 0, 4.7))
sketch4.addConstraint(Sketcher.Constraint("DistanceX", 0, 3, 1, 3, 29.0))
sketch4.addConstraint(Sketcher.Constraint("DistanceY", 4, 3, 3, 3, 29.0))
sketch4.addConstraint(Sketcher.Constraint("DistanceY", 8, 3, 7, 3, 29.0))
sketch4.addConstraint(Sketcher.Constraint("DistanceX", -1, 1, 0, 3, 6.5))
sketch4.addConstraint(Sketcher.Constraint("DistanceY", -1, 1, 0, 3, 91.6))
sketch4.addConstraint(Sketcher.Constraint("DistanceX", -1, 1, 2, 3, 41.8))
sketch4.addConstraint(Sketcher.Constraint("DistanceY", -1, 1, 2, 3, 85.3))
sketch4.addConstraint(Sketcher.Constraint("DistanceX", -1, 1, 3, 3, 0.2))
sketch4.addConstraint(Sketcher.Constraint("DistanceY", -1, 1, 6, 3, 35.5))
sketch4.addConstraint(Sketcher.Constraint("DistanceY", -1, 1, 9, 3, 0.2))
doc.recompute()
hole2 = doc.addObject("PartDesign::Hole", "Hole001")
body.addObject(hole2)
hole2.Profile = sketch4
hole2.ThreadType = "None"
hole2.Diameter = 4.7
hole2.DepthType = "ThroughAll"

doc.recompute()
